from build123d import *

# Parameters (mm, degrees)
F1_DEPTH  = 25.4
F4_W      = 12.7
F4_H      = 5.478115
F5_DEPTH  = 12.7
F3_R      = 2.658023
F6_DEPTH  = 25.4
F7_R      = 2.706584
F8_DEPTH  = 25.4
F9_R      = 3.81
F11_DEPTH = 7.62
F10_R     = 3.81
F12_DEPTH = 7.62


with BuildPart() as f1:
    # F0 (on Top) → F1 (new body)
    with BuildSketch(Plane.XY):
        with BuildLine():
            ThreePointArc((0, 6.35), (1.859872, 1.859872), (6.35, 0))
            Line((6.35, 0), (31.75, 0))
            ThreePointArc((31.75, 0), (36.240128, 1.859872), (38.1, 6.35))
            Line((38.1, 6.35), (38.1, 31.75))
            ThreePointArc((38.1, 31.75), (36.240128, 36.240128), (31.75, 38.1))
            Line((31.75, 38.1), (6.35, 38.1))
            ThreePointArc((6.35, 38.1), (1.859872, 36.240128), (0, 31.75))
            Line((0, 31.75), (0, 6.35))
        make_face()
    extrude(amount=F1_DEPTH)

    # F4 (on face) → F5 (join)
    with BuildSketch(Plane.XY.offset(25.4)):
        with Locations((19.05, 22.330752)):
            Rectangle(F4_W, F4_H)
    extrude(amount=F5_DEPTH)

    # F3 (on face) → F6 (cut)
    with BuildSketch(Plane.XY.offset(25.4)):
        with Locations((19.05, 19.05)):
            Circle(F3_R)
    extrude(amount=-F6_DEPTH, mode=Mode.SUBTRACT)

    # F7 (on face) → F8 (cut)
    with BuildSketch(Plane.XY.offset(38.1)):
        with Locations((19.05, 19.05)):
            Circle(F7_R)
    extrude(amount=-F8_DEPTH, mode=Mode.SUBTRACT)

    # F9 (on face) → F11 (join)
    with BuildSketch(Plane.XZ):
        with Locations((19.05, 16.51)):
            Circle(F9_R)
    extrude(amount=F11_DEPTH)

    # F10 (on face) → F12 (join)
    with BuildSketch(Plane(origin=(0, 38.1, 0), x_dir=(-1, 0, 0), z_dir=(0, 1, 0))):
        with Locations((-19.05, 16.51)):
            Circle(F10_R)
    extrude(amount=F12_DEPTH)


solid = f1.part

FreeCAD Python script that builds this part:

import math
import FreeCAD as App
import Part
import Sketcher

V = App.Vector
Q = App.Units.Quantity

doc = App.newDocument("Part")
body = doc.addObject("PartDesign::Body", "Body")

# Sketch on XY plane
sketch1 = body.newObject("Sketcher::SketchObject", "Sketch")
sketch1.AttachmentSupport = (doc.getObject("XY_Plane"), [""])
sketch1.MapMode = "FlatFace"
sketch1.addGeometry(Part.ArcOfCircle(Part.Circle(V(6, 6, 0), V(0, 0, 1), 6), math.radians(-180), math.radians(-90)), False)
sketch1.addGeometry(Part.LineSegment(V(6, 0, 0), V(32, 0, 0)), False)
sketch1.addGeometry(Part.ArcOfCircle(Part.Circle(V(32, 6, 0), V(0, 0, 1), 6), math.radians(-90), math.radians(0)), False)
sketch1.addGeometry(Part.LineSegment(V(38, 6, 0), V(38, 32, 0)), False)
sketch1.addGeometry(Part.ArcOfCircle(Part.Circle(V(32, 32, 0), V(0, 0, 1), 6), math.radians(0), math.radians(90)), False)
sketch1.addGeometry(Part.LineSegment(V(32, 38, 0), V(6, 38, 0)), False)
sketch1.addGeometry(Part.ArcOfCircle(Part.Circle(V(6, 32, 0), V(0, 0, 1), 6), math.radians(90), math.radians(180)), False)
sketch1.addGeometry(Part.LineSegment(V(0, 32, 0), V(0, 6, 0)), False)
sketch1.addConstraint(Sketcher.Constraint("Tangent", 0, 2, 1, 1))
sketch1.addConstraint(Sketcher.Constraint("Tangent", 1, 2, 2, 1))
sketch1.addConstraint(Sketcher.Constraint("Tangent", 2, 2, 3, 1))
sketch1.addConstraint(Sketcher.Constraint("Tangent", 3, 2, 4, 1))
sketch1.addConstraint(Sketcher.Constraint("Tangent", 4, 2, 5, 1))
sketch1.addConstraint(Sketcher.Constraint("Tangent", 5, 2, 6, 1))
sketch1.addConstraint(Sketcher.Constraint("Tangent", 6, 2, 7, 1))
sketch1.addConstraint(Sketcher.Constraint("Tangent", 7, 2, 0, 1))
sketch1.addConstraint(Sketcher.Constraint("Horizontal", 1))
sketch1.addConstraint(Sketcher.Constraint("Vertical", 3))
sketch1.addConstraint(Sketcher.Constraint("Horizontal", 5))
sketch1.addConstraint(Sketcher.Constraint("Vertical", 7))
sketch1.addConstraint(Sketcher.Constraint("Equal", 0, 2))
sketch1.addConstraint(Sketcher.Constraint("Equal", 2, 4))
sketch1.addConstraint(Sketcher.Constraint("Equal", 4, 6))
sketch1.addConstraint(Sketcher.Constraint("PointOnObject", 0, 2, -1))
sketch1.addConstraint(Sketcher.Constraint("PointOnObject", 6, 2, -2))
sketch1.addConstraint(Sketcher.Constraint("Equal", 5, 3))
sketch1.addConstraint(Sketcher.Constraint("DistanceX", 1, 1, 1, 2, Q("1 in")))
sketch1.addConstraint(Sketcher.Constraint("Radius", 0, Q("0.25 in")))
pad1 = body.newObject("PartDesign::Pad", "Pad")
pad1.Profile = sketch1
pad1.Length = Q("1 in")

# Sketch on XY plane
sketch2 = body.newObject("Sketcher::SketchObject", "Sketch001")
sketch2.AttachmentSupport = (doc.getObject("XY_Plane"), [""])
sketch2.MapMode = "FlatFace"
sketch2.AttachmentOffset = App.Placement(V(0, 0, 1 * 25.4), App.Rotation())
sketch2.addGeometry(Part.LineSegment(V(13, 25, 0), V(13, 20, 0)), False)
sketch2.addGeometry(Part.LineSegment(V(13, 20, 0), V(25, 20, 0)), False)
sketch2.addGeometry(Part.LineSegment(V(25, 20, 0), V(25, 25, 0)), False)
sketch2.addGeometry(Part.LineSegment(V(25, 25, 0), V(13, 25, 0)), False)
sketch2.addConstraint(Sketcher.Constraint("Coincident", 0, 2, 1, 1))
sketch2.addConstraint(Sketcher.Constraint("Coincident", 1, 2, 2, 1))
sketch2.addConstraint(Sketcher.Constraint("Coincident", 2, 2, 3, 1))
sketch2.addConstraint(Sketcher.Constraint("Coincident", 3, 2, 0, 1))
sketch2.addConstraint(Sketcher.Constraint("Vertical", 0))
sketch2.addConstraint(Sketcher.Constraint("Horizontal", 1))
sketch2.addConstraint(Sketcher.Constraint("Vertical", 2))
sketch2.addConstraint(Sketcher.Constraint("Horizontal", 3))
sketch2.addConstraint(Sketcher.Constraint("DistanceX", 1, 1, 1, 2, Q("0.5 in")))
sketch2.addConstraint(Sketcher.Constraint("DistanceX", -1, 1, 1, 2, Q("1 in")))
sketch2.addConstraint(Sketcher.Constraint("DistanceY", 0, 2, 0, 1, 5.478115))
sketch2.addConstraint(Sketcher.Constraint("DistanceY", -1, 1, 2, 2, 25.06981))
pad2 = body.newObject("PartDesign::Pad", "Pad001")
pad2.Profile = sketch2
pad2.Length = Q("0.5 in")

# Sketch on XY plane
sketch3 = body.newObject("Sketcher::SketchObject", "Sketch002")
sketch3.AttachmentSupport = (doc.getObject("XY_Plane"), [""])
sketch3.MapMode = "FlatFace"
sketch3.AttachmentOffset = App.Placement(V(0, 0, 1 * 25.4), App.Rotation())
sketch3.addGeometry(Part.Circle(V(19.1, 19.1, 0), V(0, 0, 1), 2.7), False)
sketch3.addConstraint(Sketcher.Constraint("DistanceX", -1, 1, 0, 3, Q("0.75 in")))
sketch3.addConstraint(Sketcher.Constraint("DistanceY", -1, 1, 0, 3, Q("0.75 in")))
sketch3.addConstraint(Sketcher.Constraint("Diameter", 0, 5.316046))
pocket1 = body.newObject("PartDesign::Pocket", "Pocket")
pocket1.Profile = sketch3
pocket1.Length = Q("1 in")

# Sketch on XY plane
sketch4 = body.newObject("Sketcher::SketchObject", "Sketch003")
sketch4.AttachmentSupport = (doc.getObject("XY_Plane"), [""])
sketch4.MapMode = "FlatFace"
sketch4.AttachmentOffset = App.Placement(V(0, 0, 1.5 * 25.4), App.Rotation())
sketch4.addGeometry(Part.Circle(V(19.1, 19.1, 0), V(0, 0, 1), 2.7), False)
sketch4.addConstraint(Sketcher.Constraint("DistanceX", -1, 1, 0, 3, Q("0.75 in")))
sketch4.addConstraint(Sketcher.Constraint("DistanceY", -1, 1, 0, 3, Q("0.75 in")))
sketch4.addConstraint(Sketcher.Constraint("Diameter", 0, 5.413168))
pocket2 = body.newObject("PartDesign::Pocket", "Pocket001")
pocket2.Profile = sketch4
pocket2.Length = Q("1 in")

# Sketch on XZ plane
sketch5 = body.newObject("Sketcher::SketchObject", "Sketch004")
sketch5.AttachmentSupport = (doc.getObject("XZ_Plane"), [""])
sketch5.MapMode = "FlatFace"
sketch5.addGeometry(Part.Circle(V(19.1, 16.5, 0), V(0, 0, 1), 3.8), False)
sketch5.addConstraint(Sketcher.Constraint("Diameter", 0, Q("0.3 in")))
sketch5.addConstraint(Sketcher.Constraint("DistanceX", -1, 1, 0, 3, Q("0.75 in")))
sketch5.addConstraint(Sketcher.Constraint("DistanceY", -1, 1, 0, 3, Q("0.65 in")))
pad3 = body.newObject("PartDesign::Pad", "Pad002")
pad3.Profile = sketch5
pad3.Length = Q("0.3 in")

# Sketch on XZ plane
sketch6 = body.newObject("Sketcher::SketchObject", "Sketch005")
sketch6.AttachmentSupport = (doc.getObject("XZ_Plane"), [""])
sketch6.MapMode = "FlatFace"
sketch6.AttachmentOffset = App.Placement(V(0, 0, -1.5 * 25.4), App.Rotation())
sketch6.addGeometry(Part.Circle(V(19.1, 16.5, 0), V(0, 0, 1), 3.8), False)
sketch6.addConstraint(Sketcher.Constraint("Diameter", 0, Q("0.3 in")))
sketch6.addConstraint(Sketcher.Constraint("DistanceX", -1, 1, 0, 3, Q("0.75 in")))
sketch6.addConstraint(Sketcher.Constraint("DistanceY", -1, 1, 0, 3, Q("0.65 in")))
pad4 = body.newObject("PartDesign::Pad", "Pad003")
pad4.Profile = sketch6
pad4.Length = Q("0.3 in")
pad4.Reversed = True

doc.recompute()
